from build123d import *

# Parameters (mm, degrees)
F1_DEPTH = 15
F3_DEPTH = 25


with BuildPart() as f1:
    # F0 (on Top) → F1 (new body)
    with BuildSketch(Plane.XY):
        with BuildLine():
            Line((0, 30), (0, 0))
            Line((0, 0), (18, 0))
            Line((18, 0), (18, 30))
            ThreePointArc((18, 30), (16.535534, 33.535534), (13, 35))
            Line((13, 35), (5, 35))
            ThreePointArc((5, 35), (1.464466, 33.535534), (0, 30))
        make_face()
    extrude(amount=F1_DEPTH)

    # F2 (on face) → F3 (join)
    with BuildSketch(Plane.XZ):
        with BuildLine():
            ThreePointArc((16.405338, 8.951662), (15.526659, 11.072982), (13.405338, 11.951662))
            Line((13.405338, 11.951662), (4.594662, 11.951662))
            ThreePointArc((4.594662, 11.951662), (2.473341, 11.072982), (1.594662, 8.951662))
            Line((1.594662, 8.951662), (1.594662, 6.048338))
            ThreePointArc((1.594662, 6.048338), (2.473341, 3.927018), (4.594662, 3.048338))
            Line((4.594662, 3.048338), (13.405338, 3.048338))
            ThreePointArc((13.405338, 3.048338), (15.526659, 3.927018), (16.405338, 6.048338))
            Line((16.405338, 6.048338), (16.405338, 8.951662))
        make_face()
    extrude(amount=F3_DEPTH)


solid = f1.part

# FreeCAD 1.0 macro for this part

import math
import FreeCAD as App
import Part
import Sketcher
from FreeCAD import Vector
Q = App.Units.Quantity

doc = App.newDocument("Part")
body = doc.addObject("PartDesign::Body", "Body")

sketch1 = body.newObject("Sketcher::SketchObject", "Sketch")
sketch1.AttachmentSupport = (doc.getObject("XY_Plane"), [""])
sketch1.MapMode = "FlatFace"
sketch1.addGeometry(Part.LineSegment(Vector(0, 30, 0), Vector(0, 0, 0)), False)
sketch1.addGeometry(Part.LineSegment(Vector(0, 0, 0), Vector(18, 0, 0)), False)
sketch1.addGeometry(Part.LineSegment(Vector(18, 0, 0), Vector(18, 30, 0)), False)
sketch1.addGeometry(Part.ArcOfCircle(Part.Circle(Vector(13, 30, 0), Vector(0, 0, 1), 5), math.radians(0), math.radians(90)), False)
sketch1.addGeometry(Part.LineSegment(Vector(13, 35, 0), Vector(5, 35, 0)), False)
sketch1.addGeometry(Part.ArcOfCircle(Part.Circle(Vector(5, 30, 0), Vector(0, 0, 1), 5), math.radians(90), math.radians(180)), False)
sketch1.addConstraint(Sketcher.Constraint("Coincident", 0, 2, 1, 1))
sketch1.addConstraint(Sketcher.Constraint("Coincident", 1, 2, 2, 1))
sketch1.addConstraint(Sketcher.Constraint("Tangent", 2, 2, 3, 1))
sketch1.addConstraint(Sketcher.Constraint("Tangent", 3, 2, 4, 1))
sketch1.addConstraint(Sketcher.Constraint("Tangent", 4, 2, 5, 1))
sketch1.addConstraint(Sketcher.Constraint("Tangent", 5, 2, 0, 1))
sketch1.addConstraint(Sketcher.Constraint("Vertical", 0))
sketch1.addConstraint(Sketcher.Constraint("Horizontal", 1))
sketch1.addConstraint(Sketcher.Constraint("Vertical", 2))
sketch1.addConstraint(Sketcher.Constraint("Horizontal", 4))
sketch1.addConstraint(Sketcher.Constraint("Coincident", 0, 2, -1, 1))
sketch1.addConstraint(Sketcher.Constraint("Equal", 3, 5))
sketch1.addConstraint(Sketcher.Constraint("Radius", 3, Q("5 mm")))
sketch1.addConstraint(Sketcher.Constraint("DistanceX", 1, 1, 1, 2, Q("18 mm")))
sketch1.addConstraint(Sketcher.Constraint("DistanceY", 0, 2, 0, 1, Q("30 mm")))
pad1 = body.newObject("PartDesign::Pad", "Pad")
pad1.Profile = sketch1
pad1.Length = 15

sketch2 = body.newObject("Sketcher::SketchObject", "Sketch001")
sketch2.AttachmentSupport = (doc.getObject("XZ_Plane"), [""])
sketch2.MapMode = "FlatFace"
sketch2.addGeometry(Part.ArcOfCircle(Part.Circle(Vector(13.4, 9, 0), Vector(0, 0, 1), 3), math.radians(0), math.radians(90)), False)
sketch2.addGeometry(Part.LineSegment(Vector(13.4, 12, 0), Vector(4.6, 12, 0)), False)
sketch2.addGeometry(Part.ArcOfCircle(Part.Circle(Vector(4.6, 9, 0), Vector(0, 0, 1), 3), math.radians(90), math.radians(180)), False)
sketch2.addGeometry(Part.LineSegment(Vector(1.6, 9, 0), Vector(1.6, 6, 0)), False)
sketch2.addGeometry(Part.ArcOfCircle(Part.Circle(Vector(4.6, 6, 0), Vector(0, 0, 1), 3), math.radians(180), math.radians(270)), False)
sketch2.addGeometry(Part.LineSegment(Vector(4.6, 3, 0), Vector(13.4, 3, 0)), False)
sketch2.addGeometry(Part.ArcOfCircle(Part.Circle(Vector(13.4, 6, 0), Vector(0, 0, 1), 3), math.radians(-90), math.radians(0)), False)
sketch2.addGeometry(Part.LineSegment(Vector(16.4, 6, 0), Vector(16.4, 9, 0)), False)
sketch2.addConstraint(Sketcher.Constraint("Tangent", 0, 2, 1, 1))
sketch2.addConstraint(Sketcher.Constraint("Tangent", 1, 2, 2, 1))
sketch2.addConstraint(Sketcher.Constraint("Tangent", 2, 2, 3, 1))
sketch2.addConstraint(Sketcher.Constraint("Tangent", 3, 2, 4, 1))
sketch2.addConstraint(Sketcher.Constraint("Tangent", 4, 2, 5, 1))
sketch2.addConstraint(Sketcher.Constraint("Tangent", 5, 2, 6, 1))
sketch2.addConstraint(Sketcher.Constraint("Tangent", 6, 2, 7, 1))
sketch2.addConstraint(Sketcher.Constraint("Tangent", 7, 2, 0, 1))
sketch2.addConstraint(Sketcher.Constraint("Horizontal", 1))
sketch2.addConstraint(Sketcher.Constraint("Vertical", 3))
sketch2.addConstraint(Sketcher.Constraint("Horizontal", 5))
sketch2.addConstraint(Sketcher.Constraint("Vertical", 7))
sketch2.addConstraint(Sketcher.Constraint("Equal", 0, 2))
sketch2.addConstraint(Sketcher.Constraint("Equal", 2, 4))
sketch2.addConstraint(Sketcher.Constraint("Equal", 4, 6))
sketch2.addConstraint(Sketcher.Constraint("Radius", 0, Q("2.999999 mm")))
sketch2.addConstraint(Sketcher.Constraint("DistanceX", 1, 2, 1, 1, Q("8.810676 mm")))
sketch2.addConstraint(Sketcher.Constraint("DistanceY", 3, 2, 3, 1, Q("2.903324 mm")))
sketch2.addConstraint(Sketcher.Constraint("DistanceX", -1, 1, 0, 3, Q("13.405339 mm")))
sketch2.addConstraint(Sketcher.Constraint("DistanceY", -1, 1, 0, 2, Q("11.951662 mm")))
pad2 = body.newObject("PartDesign::Pad", "Pad001")
pad2.Profile = sketch2
pad2.Length = 25

doc.recompute()
